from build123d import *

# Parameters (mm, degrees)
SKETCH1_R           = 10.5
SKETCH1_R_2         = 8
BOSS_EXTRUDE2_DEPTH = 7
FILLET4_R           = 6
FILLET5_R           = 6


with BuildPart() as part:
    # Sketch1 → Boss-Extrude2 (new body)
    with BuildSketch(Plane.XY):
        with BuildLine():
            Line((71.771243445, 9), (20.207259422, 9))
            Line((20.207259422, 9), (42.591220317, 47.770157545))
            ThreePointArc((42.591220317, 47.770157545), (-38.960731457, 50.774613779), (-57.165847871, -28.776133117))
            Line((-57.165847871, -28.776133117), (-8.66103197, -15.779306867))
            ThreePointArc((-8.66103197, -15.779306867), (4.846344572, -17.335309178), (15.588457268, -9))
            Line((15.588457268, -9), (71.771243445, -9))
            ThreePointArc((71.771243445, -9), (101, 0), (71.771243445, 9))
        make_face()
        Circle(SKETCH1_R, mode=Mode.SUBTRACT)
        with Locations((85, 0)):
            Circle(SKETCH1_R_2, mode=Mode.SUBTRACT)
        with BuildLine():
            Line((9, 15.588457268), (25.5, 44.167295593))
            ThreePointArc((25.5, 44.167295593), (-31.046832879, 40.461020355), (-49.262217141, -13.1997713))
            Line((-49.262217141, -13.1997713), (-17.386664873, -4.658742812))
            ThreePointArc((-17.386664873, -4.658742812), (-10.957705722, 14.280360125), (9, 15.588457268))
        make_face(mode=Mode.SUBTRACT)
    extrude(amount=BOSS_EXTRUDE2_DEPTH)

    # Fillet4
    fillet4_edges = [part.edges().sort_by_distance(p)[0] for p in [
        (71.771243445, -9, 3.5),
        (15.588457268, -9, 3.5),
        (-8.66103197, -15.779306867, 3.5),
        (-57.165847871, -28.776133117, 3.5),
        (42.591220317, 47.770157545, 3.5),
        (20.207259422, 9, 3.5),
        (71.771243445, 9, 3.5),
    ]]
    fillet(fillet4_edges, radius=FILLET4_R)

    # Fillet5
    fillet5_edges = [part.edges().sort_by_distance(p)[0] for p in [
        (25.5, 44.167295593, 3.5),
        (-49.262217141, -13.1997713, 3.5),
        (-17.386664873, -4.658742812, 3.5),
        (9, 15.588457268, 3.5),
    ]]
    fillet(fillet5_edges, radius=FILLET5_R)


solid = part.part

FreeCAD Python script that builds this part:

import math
import FreeCAD as App
import Part
import Sketcher
from FreeCAD import Vector
Q = App.Units.Quantity


def edges_at(feature, points):
    """Names of the edges that pass closest to the given points."""
    edges = feature.Shape.Edges
    near = lambda p: min(range(len(edges)), key=lambda i: edges[i].distToShape(Part.Vertex(*p))[0])
    return sorted({f"Edge{near(p) + 1}" for p in points})

doc = App.newDocument("Part")
body = doc.addObject("PartDesign::Body", "Body")

sketch1 = body.newObject("Sketcher::SketchObject", "Sketch")
sketch1.AttachmentSupport = (doc.getObject("XY_Plane"), [""])
sketch1.MapMode = "FlatFace"
sketch1.addGeometry([
    Part.LineSegment(Vector(72, 9, 0), Vector(20, 9, 0)),
    Part.LineSegment(Vector(20, 9, 0), Vector(43, 48, 0)),
    Part.ArcOfCircle(Part.Circle(Vector(0, 0, 0), Vector(0, 0, 1), 64), math.radians(48), math.radians(207)),
    Part.LineSegment(Vector(-57, -29, 0), Vector(-9, -16, 0)),
    Part.ArcOfCircle(Part.Circle(Vector(0, 0, 0), Vector(0, 0, 1), 18), math.radians(-119), math.radians(-30)),
    Part.LineSegment(Vector(16, -9, 0), Vector(72, -9, 0)),
    Part.ArcOfCircle(Part.Circle(Vector(85, 0, 0), Vector(0, 0, 1), 16), math.radians(-146), math.radians(146)),
    Part.Circle(Vector(0, 0, 0), Vector(0, 0, 1), 10),
    Part.Circle(Vector(85, 0, 0), Vector(0, 0, 1), 8),
    Part.LineSegment(Vector(26, 44, 0), Vector(9, 16, 0)),
    Part.ArcOfCircle(Part.Circle(Vector(0, 0, 0), Vector(0, 0, 1), 18), math.radians(60), math.radians(195)),
    Part.LineSegment(Vector(-17, -5, 0), Vector(-49, -13, 0)),
    Part.ArcOfCircle(Part.Circle(Vector(0, 0, 0), Vector(0, 0, 1), 51), math.radians(60), math.radians(195)),
], False)
sketch1.addConstraint([
    Sketcher.Constraint("Coincident", 0, 2, 1, 1),
    Sketcher.Constraint("Coincident", 1, 2, 2, 1),
    Sketcher.Constraint("Coincident", 2, 2, 3, 1),
    Sketcher.Constraint("Coincident", 3, 2, 4, 1),
    Sketcher.Constraint("Coincident", 4, 2, 5, 1),
    Sketcher.Constraint("Coincident", 5, 2, 6, 1),
    Sketcher.Constraint("Coincident", 6, 2, 0, 1),
    Sketcher.Constraint("Coincident", 9, 2, 10, 1),
    Sketcher.Constraint("Coincident", 10, 2, 11, 1),
    Sketcher.Constraint("Coincident", 11, 2, 12, 2),
    Sketcher.Constraint("Coincident", 12, 1, 9, 1),
    Sketcher.Constraint("Horizontal", 0),
    Sketcher.Constraint("Horizontal", 5),
    Sketcher.Constraint("Coincident", 2, 3, -1, 1),
    Sketcher.Constraint("Coincident", 4, 3, -1, 1),
    Sketcher.Constraint("Coincident", 7, 3, -1, 1),
    Sketcher.Constraint("Coincident", 10, 3, -1, 1),
    Sketcher.Constraint("Coincident", 12, 3, -1, 1),
    Sketcher.Constraint("Coincident", 8, 3, 6, 3),
    Sketcher.Constraint("Equal", 4, 10),
    Sketcher.Constraint("Symmetric", 5, 2, 6, 2, -1),
    Sketcher.Constraint("Parallel", 1, 9),
    Sketcher.Constraint("Parallel", 3, 11),
    Sketcher.Constraint("Diameter", 7, Q("21 mm")),
    Sketcher.Constraint("Diameter", 8, Q("16 mm")),
    Sketcher.Constraint("Radius", 2, Q("64 mm")),
    Sketcher.Constraint("Radius", 4, Q("18 mm")),
    Sketcher.Constraint("Radius", 6, Q("16 mm")),
    Sketcher.Constraint("Radius", 12, Q("51 mm")),
    Sketcher.Constraint("Angle", 1, Q("60 deg")),
    Sketcher.Constraint("Angle", 3, Q("15 deg")),
    Sketcher.Constraint("DistanceX", -1, 1, 6, 3, Q("85 mm")),
    Sketcher.Constraint("DistanceY", -1, 1, 0, 2, Q("9 mm")),
    Sketcher.Constraint("DistanceX", -1, 1, 9, 2, Q("9 mm")),
    Sketcher.Constraint("Distance", 1, Q("44.767922 mm")),
    Sketcher.Constraint("Distance", 3, Q("50.215881 mm")),
    Sketcher.Constraint("DistanceY", 11, 2, -1, 1, Q("13.199771 mm")),
])
pad1 = body.newObject("PartDesign::Pad", "Pad")
pad1.Profile = sketch1
pad1.Length = 7
doc.recompute()

fillet = body.newObject("PartDesign::Fillet", "Fillet")
fillet.Base = (pad1, edges_at(pad1, [
    (71.771, -9, 3.5),
    (15.588, -9, 3.5),
    (-8.661, -15.779, 3.5),
    (-57.166, -28.776, 3.5),
    (42.591, 47.77, 3.5),
    (20.207, 9, 3.5),
    (71.771, 9, 3.5),
]))
fillet.Radius = 6
doc.recompute()

fillet2 = body.newObject("PartDesign::Fillet", "Fillet001")
fillet2.Base = (fillet, edges_at(fillet, [
    (25.5, 44.167, 3.5),
    (-49.262, -13.2, 3.5),
    (-17.387, -4.659, 3.5),
    (9, 15.588, 3.5),
]))
fillet2.Radius = 6

doc.recompute()
